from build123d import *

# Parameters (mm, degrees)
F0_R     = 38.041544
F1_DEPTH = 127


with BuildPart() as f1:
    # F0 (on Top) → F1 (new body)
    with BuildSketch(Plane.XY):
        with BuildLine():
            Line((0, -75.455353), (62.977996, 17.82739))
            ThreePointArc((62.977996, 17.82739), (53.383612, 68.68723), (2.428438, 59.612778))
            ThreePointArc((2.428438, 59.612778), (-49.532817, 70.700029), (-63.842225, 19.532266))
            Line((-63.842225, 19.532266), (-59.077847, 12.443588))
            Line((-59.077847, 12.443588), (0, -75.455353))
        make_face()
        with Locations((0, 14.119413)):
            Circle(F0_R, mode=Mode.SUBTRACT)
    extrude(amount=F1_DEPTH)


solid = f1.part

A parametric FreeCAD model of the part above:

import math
import FreeCAD as App
import Part
import Sketcher
from FreeCAD import Vector
Q = App.Units.Quantity

doc = App.newDocument("Part")
body = doc.addObject("PartDesign::Body", "Body")

# Sketch on XY plane
sketch1 = body.newObject("Sketcher::SketchObject", "Sketch")
sketch1.AttachmentSupport = (doc.getObject("XY_Plane"), [""])
sketch1.MapMode = "FlatFace"
sketch1.addGeometry(Part.LineSegment(Vector(0, -75.455353, 0), Vector(62.977996, 17.82739, 0)), False)
sketch1.addGeometry(Part.ArcOfCircle(Part.Circle(Vector(32.489829, 38.410872, 0), Vector(0, 0, 1), 36.785976), math.radians(-34.024474), math.radians(144.805183)), False)
sketch1.addGeometry(Part.ArcOfCircle(Part.Circle(Vector(-29.453397, 37.499942, 0), Vector(0, 0, 1), 38.799857), math.radians(34.744686), math.radians(207.586431)), False)
sketch1.addGeometry(Part.LineSegment(Vector(-63.842225, 19.532266, 0), Vector(-59.077847, 12.443588, 0)), False)
sketch1.addGeometry(Part.LineSegment(Vector(-59.077847, 12.443588, 0), Vector(0, -75.455353, 0)), False)
sketch1.addGeometry(Part.Circle(Vector(0, 14.119413, 0), Vector(0, 0, 1), 38.041544), False)
sketch1.addConstraint(Sketcher.Constraint("Tangent", 0, 2, 1, 1))
sketch1.addConstraint(Sketcher.Constraint("Coincident", 1, 2, 2, 1))
sketch1.addConstraint(Sketcher.Constraint("Coincident", 2, 2, 3, 1))
sketch1.addConstraint(Sketcher.Constraint("Coincident", 3, 2, 4, 1))
sketch1.addConstraint(Sketcher.Constraint("Coincident", 4, 2, 0, 1))
sketch1.addConstraint(Sketcher.Constraint("PointOnObject", 5, 3, -2))
sketch1.addConstraint(Sketcher.Constraint("PointOnObject", 4, 2, -2))
sketch1.addConstraint(Sketcher.Constraint("Parallel", 3, 4))
sketch1.addConstraint(Sketcher.Constraint("Diameter", 5, 76.083088))
sketch1.addConstraint(Sketcher.Constraint("Radius", 1, 36.785976))
sketch1.addConstraint(Sketcher.Constraint("Radius", 2, 38.799857))
sketch1.addConstraint(Sketcher.Constraint("Distance", 3, 8.540998))
sketch1.addConstraint(Sketcher.Constraint("Distance", 4, 105.907582))
sketch1.addConstraint(Sketcher.Constraint("DistanceX", -1, 1, 1, 3, 32.489829))
sketch1.addConstraint(Sketcher.Constraint("DistanceY", -1, 1, 1, 3, 38.410872))
sketch1.addConstraint(Sketcher.Constraint("DistanceY", -1, 1, 0, 2, 17.82739))
sketch1.addConstraint(Sketcher.Constraint("DistanceX", -1, 1, 1, 2, 2.428438))
sketch1.addConstraint(Sketcher.Constraint("DistanceY", 2, 3, 1, 3, 0.91093))
sketch1.addConstraint(Sketcher.Constraint("DistanceY", 5, 3, 2, 3, 23.380529))
pad1 = body.newObject("PartDesign::Pad", "Pad")
pad1.Profile = sketch1
pad1.Length = Q("5 in")

doc.recompute()
